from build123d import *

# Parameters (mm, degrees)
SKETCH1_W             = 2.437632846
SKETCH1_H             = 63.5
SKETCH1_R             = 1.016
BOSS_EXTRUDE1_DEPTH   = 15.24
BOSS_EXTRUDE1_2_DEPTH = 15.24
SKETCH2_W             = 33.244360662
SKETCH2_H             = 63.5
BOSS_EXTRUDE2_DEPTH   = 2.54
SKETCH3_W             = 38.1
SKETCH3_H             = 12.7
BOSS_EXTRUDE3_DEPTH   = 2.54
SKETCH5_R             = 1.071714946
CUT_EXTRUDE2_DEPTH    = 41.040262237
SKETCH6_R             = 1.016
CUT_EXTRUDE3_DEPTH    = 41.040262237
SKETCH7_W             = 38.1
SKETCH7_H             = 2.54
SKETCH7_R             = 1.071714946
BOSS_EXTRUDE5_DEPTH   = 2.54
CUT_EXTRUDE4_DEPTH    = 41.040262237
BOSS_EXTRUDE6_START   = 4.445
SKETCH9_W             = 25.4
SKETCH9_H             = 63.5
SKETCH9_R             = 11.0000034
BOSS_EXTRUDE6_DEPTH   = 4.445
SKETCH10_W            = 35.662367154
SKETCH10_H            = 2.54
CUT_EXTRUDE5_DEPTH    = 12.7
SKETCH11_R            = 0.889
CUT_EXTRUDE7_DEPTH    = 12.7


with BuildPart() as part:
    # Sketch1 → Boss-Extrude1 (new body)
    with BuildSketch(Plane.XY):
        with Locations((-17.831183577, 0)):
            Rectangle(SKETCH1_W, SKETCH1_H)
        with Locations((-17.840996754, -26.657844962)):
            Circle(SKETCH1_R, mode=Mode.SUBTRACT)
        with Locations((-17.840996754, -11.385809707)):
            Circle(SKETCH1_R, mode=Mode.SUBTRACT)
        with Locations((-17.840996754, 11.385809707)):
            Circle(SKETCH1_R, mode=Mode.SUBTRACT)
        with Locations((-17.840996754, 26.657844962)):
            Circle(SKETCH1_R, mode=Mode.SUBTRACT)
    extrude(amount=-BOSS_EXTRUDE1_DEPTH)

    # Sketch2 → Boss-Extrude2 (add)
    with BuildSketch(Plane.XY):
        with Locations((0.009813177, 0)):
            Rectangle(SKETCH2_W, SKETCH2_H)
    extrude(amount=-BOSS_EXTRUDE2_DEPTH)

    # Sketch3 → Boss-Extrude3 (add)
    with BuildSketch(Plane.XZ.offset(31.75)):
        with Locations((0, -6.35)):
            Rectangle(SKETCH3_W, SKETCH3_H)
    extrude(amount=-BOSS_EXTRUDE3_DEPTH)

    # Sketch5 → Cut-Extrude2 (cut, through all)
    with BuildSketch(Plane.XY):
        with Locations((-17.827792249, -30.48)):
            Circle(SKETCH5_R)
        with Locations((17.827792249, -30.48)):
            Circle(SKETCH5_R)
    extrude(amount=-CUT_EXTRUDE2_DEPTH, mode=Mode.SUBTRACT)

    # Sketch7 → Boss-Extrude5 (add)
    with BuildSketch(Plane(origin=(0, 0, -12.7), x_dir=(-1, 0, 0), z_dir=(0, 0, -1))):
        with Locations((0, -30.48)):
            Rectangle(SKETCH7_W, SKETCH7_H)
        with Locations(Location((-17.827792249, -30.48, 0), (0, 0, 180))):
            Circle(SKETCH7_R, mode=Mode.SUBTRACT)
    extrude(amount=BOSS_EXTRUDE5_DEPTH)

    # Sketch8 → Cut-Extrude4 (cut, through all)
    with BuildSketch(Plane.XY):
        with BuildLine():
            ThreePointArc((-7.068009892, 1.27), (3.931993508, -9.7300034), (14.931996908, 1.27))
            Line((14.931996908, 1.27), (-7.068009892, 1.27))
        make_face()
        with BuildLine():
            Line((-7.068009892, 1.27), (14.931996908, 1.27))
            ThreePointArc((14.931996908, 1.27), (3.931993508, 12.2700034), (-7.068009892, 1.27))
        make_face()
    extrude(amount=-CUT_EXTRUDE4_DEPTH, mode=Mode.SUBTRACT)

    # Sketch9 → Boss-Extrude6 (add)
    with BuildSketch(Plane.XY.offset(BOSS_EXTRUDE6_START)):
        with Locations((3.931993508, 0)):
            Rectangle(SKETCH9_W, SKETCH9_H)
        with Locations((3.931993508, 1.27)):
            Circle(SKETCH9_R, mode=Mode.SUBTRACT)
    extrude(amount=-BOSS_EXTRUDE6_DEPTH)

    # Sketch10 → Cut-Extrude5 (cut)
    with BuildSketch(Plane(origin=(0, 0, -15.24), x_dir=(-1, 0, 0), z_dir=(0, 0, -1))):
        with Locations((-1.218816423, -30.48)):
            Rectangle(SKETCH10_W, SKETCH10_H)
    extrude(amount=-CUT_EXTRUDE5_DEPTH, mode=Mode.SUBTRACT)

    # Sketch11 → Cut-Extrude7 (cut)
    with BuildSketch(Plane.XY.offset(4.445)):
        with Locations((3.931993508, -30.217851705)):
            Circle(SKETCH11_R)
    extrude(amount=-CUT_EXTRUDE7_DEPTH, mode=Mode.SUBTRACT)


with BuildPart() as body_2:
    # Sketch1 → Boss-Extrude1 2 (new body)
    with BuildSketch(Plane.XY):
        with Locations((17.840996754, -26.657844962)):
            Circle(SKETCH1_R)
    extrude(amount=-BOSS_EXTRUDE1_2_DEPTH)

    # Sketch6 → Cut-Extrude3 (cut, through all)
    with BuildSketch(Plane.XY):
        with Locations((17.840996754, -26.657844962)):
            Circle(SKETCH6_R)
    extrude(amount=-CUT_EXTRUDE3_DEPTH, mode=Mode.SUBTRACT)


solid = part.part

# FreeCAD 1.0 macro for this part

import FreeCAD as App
import Part
import Sketcher

V = App.Vector
Q = App.Units.Quantity


def add_polygon(sketch, points):
    """Adds a closed chain of lines whose ends are joined by coincident constraints."""
    first, n = sketch.GeometryCount, len(points)
    for a, b in zip(points, points[1:] + points[:1]):
        sketch.addGeometry(Part.LineSegment(App.Vector(*a, 0), App.Vector(*b, 0)), False)
    for i in range(n):
        sketch.addConstraint(Sketcher.Constraint("Coincident", first + i, 2, first + (i + 1) % n, 1))

doc = App.newDocument("Part")
body = doc.addObject("PartDesign::Body", "Body")

sketch1 = doc.addObject("Sketcher::SketchObject", "Sketch")
body.addObject(sketch1)
sketch1.AttachmentSupport = (doc.XY_Plane, [""])
sketch1.MapMode = "FlatFace"
add_polygon(sketch1, [(-19.1, 31.8), (-19.1, -31.8), (-16.6, -31.8), (-16.6, 31.8)])
sketch1.addGeometry(Part.Circle(V(-17.8, -26.7, 0), V(0, 0, 1), 1), False)
sketch1.addGeometry(Part.Circle(V(-17.8, -11.4, 0), V(0, 0, 1), 1), False)
sketch1.addGeometry(Part.Circle(V(-17.8, 11.4, 0), V(0, 0, 1), 1), False)
sketch1.addGeometry(Part.Circle(V(-17.8, 26.7, 0), V(0, 0, 1), 1), False)
sketch1.addConstraint(Sketcher.Constraint("Vertical", 0))
sketch1.addConstraint(Sketcher.Constraint("Horizontal", 1))
sketch1.addConstraint(Sketcher.Constraint("Vertical", 2))
sketch1.addConstraint(Sketcher.Constraint("Horizontal", 3))
sketch1.addConstraint(Sketcher.Constraint("Equal", 4, 5))
sketch1.addConstraint(Sketcher.Constraint("Equal", 5, 6))
sketch1.addConstraint(Sketcher.Constraint("Equal", 6, 7))
sketch1.addConstraint(Sketcher.Constraint("Symmetric", 5, 3, 6, 3, -1))
sketch1.addConstraint(Sketcher.Constraint("Symmetric", 4, 3, 7, 3, -1))
sketch1.addConstraint(Sketcher.Constraint("Vertical", 4, 3, 5, 3))
sketch1.addConstraint(Sketcher.Constraint("Diameter", 4, Q("0.08 in")))
sketch1.addConstraint(Sketcher.Constraint("DistanceY", 0, 2, 0, 1, Q("2.5 in")))
sketch1.addConstraint(Sketcher.Constraint("DistanceX", 0, 2, -1, 1, Q("0.75 in")))
sketch1.addConstraint(Sketcher.Constraint("DistanceY", 0, 2, -1, 1, Q("1.25 in")))
sketch1.addConstraint(Sketcher.Constraint("DistanceX", 1, 1, 1, 2, 2.437633))
sketch1.addConstraint(Sketcher.Constraint("DistanceY", 5, 3, -1, 1, 11.38581))
sketch1.addConstraint(Sketcher.Constraint("DistanceY", 4, 3, 7, 3, 53.31569))
sketch1.addConstraint(Sketcher.Constraint("DistanceX", 4, 3, 1, 2, 1.22863))
pad1 = doc.addObject("PartDesign::Pad", "Pad")
body.addObject(pad1)
pad1.Profile = sketch1
pad1.Length = Q("0.6 in")
pad1.Reversed = True

sketch2 = doc.addObject("Sketcher::SketchObject", "Sketch001")
body.addObject(sketch2)
sketch2.AttachmentSupport = (doc.XY_Plane, [""])
sketch2.MapMode = "FlatFace"
add_polygon(sketch2, [(-17, 32), (-17, -32), (17, -32), (17, 32)])
sketch2.addConstraint(Sketcher.Constraint("Vertical", 0))
sketch2.addConstraint(Sketcher.Constraint("Horizontal", 1))
sketch2.addConstraint(Sketcher.Constraint("Vertical", 2))
sketch2.addConstraint(Sketcher.Constraint("Horizontal", 3))
sketch2.addConstraint(Sketcher.Constraint("DistanceY", 0, 2, 0, 1, Q("2.5 in")))
sketch2.addConstraint(Sketcher.Constraint("DistanceY", 0, 2, -1, 1, Q("1.25 in")))
sketch2.addConstraint(Sketcher.Constraint("DistanceX", 1, 1, 1, 2, 33.244361))
sketch2.addConstraint(Sketcher.Constraint("DistanceX", 0, 2, -1, 1, 16.612367))
pad2 = doc.addObject("PartDesign::Pad", "Pad001")
body.addObject(pad2)
pad2.Profile = sketch2
pad2.Length = Q("0.1 in")
pad2.Reversed = True

sketch3 = doc.addObject("Sketcher::SketchObject", "Sketch002")
body.addObject(sketch3)
sketch3.AttachmentSupport = (doc.XZ_Plane, [""])
sketch3.MapMode = "FlatFace"
sketch3.AttachmentOffset = App.Placement(V(0, 0, 1.25 * 25.4), App.Rotation())
add_polygon(sketch3, [(-19, 0), (-19, -13), (19, -13), (19, 0)])
sketch3.addConstraint(Sketcher.Constraint("Vertical", 0))
sketch3.addConstraint(Sketcher.Constraint("Horizontal", 1))
sketch3.addConstraint(Sketcher.Constraint("Vertical", 2))
sketch3.addConstraint(Sketcher.Constraint("Horizontal", 3))
sketch3.addConstraint(Sketcher.Constraint("Symmetric", 2, 2, 3, 2, -1, 1))
sketch3.addConstraint(Sketcher.Constraint("DistanceX", 1, 1, 1, 2, Q("1.5 in")))
sketch3.addConstraint(Sketcher.Constraint("DistanceY", 0, 2, 0, 1, Q("0.5 in")))
pad3 = doc.addObject("PartDesign::Pad", "Pad002")
body.addObject(pad3)
pad3.Profile = sketch3
pad3.Length = Q("0.1 in")
pad3.Reversed = True

sketch4 = doc.addObject("Sketcher::SketchObject", "Sketch003")
body.addObject(sketch4)
sketch4.AttachmentSupport = (doc.XY_Plane, [""])
sketch4.MapMode = "FlatFace"
sketch4.addGeometry(Part.Circle(V(-17.8, -30.5, 0), V(0, 0, 1), 1.1), False)
sketch4.addGeometry(Part.Circle(V(17.8, -30.5, 0), V(0, 0, 1), 1.1), False)
sketch4.addConstraint(Sketcher.Constraint("Equal", 0, 1))
sketch4.addConstraint(Sketcher.Constraint("Symmetric", 0, 3, 1, 3, -2))
sketch4.addConstraint(Sketcher.Constraint("DistanceY", 0, 3, -1, 1, Q("1.2 in")))
sketch4.addConstraint(Sketcher.Constraint("Diameter", 0, 2.14343))
sketch4.addConstraint(Sketcher.Constraint("DistanceX", 0, 3, -1, 1, 17.827792))
pocket1 = doc.addObject("PartDesign::Pocket", "Pocket")
body.addObject(pocket1)
pocket1.Profile = sketch4
pocket1.Type = "ThroughAll"

sketch5 = doc.addObject("Sketcher::SketchObject", "Sketch004")
body.addObject(sketch5)
sketch5.AttachmentSupport = (doc.XY_Plane, [""])
sketch5.MapMode = "FlatFace"
sketch5.AttachmentOffset = App.Placement(V(0, 0, -0.5 * 25.4), App.Rotation())
add_polygon(sketch5, [(19.1, -29.2), (19.1, -31.8), (-19.1, -31.8), (-19.1, -29.2)])
sketch5.addGeometry(Part.Circle(V(17.8, -30.5, 0), V(0, 0, 1), 1.1), False)
sketch5.addConstraint(Sketcher.Constraint("Vertical", 0))
sketch5.addConstraint(Sketcher.Constraint("Horizontal", 1))
sketch5.addConstraint(Sketcher.Constraint("Vertical", 2))
sketch5.addConstraint(Sketcher.Constraint("Horizontal", 3))
sketch5.addConstraint(Sketcher.Constraint("DistanceX", 1, 2, 1, 1, Q("1.5 in")))
sketch5.addConstraint(Sketcher.Constraint("DistanceY", 0, 2, 0, 1, Q("0.1 in")))
sketch5.addConstraint(Sketcher.Constraint("DistanceY", 4, 3, -1, 1, Q("1.2 in")))
sketch5.addConstraint(Sketcher.Constraint("DistanceX", -1, 1, 0, 2, Q("0.75 in")))
sketch5.addConstraint(Sketcher.Constraint("DistanceY", 0, 2, -1, 1, Q("1.25 in")))
sketch5.addConstraint(Sketcher.Constraint("Diameter", 4, 2.14343))
sketch5.addConstraint(Sketcher.Constraint("DistanceX", -1, 1, 4, 3, 17.827792))
pad4 = doc.addObject("PartDesign::Pad", "Pad003")
body.addObject(pad4)
pad4.Profile = sketch5
pad4.Length = Q("0.1 in")
pad4.Reversed = True

sketch6 = doc.addObject("Sketcher::SketchObject", "Sketch005")
body.addObject(sketch6)
sketch6.AttachmentSupport = (doc.XY_Plane, [""])
sketch6.MapMode = "FlatFace"
sketch6.addGeometry(Part.Circle(V(4, 1, 0), V(0, 0, 1), 11), False)
sketch6.addConstraint(Sketcher.Constraint("DistanceY", -1, 1, 0, 3, Q("0.05 in")))
sketch6.addConstraint(Sketcher.Constraint("Diameter", 0, 22.000007))
sketch6.addConstraint(Sketcher.Constraint("DistanceX", -1, 1, 0, 3, 3.931994))
pocket2 = doc.addObject("PartDesign::Pocket", "Pocket001")
body.addObject(pocket2)
pocket2.Profile = sketch6
pocket2.Type = "ThroughAll"

sketch7 = doc.addObject("Sketcher::SketchObject", "Sketch006")
body.addObject(sketch7)
sketch7.AttachmentSupport = (doc.XY_Plane, [""])
sketch7.MapMode = "FlatFace"
sketch7.AttachmentOffset = App.Placement(V(0, 0, 0.175 * 25.4), App.Rotation())
add_polygon(sketch7, [(-9, 32), (-9, -32), (17, -32), (17, 32)])
sketch7.addGeometry(Part.Circle(V(4, 1, 0), V(0, 0, 1), 11), False)
sketch7.addConstraint(Sketcher.Constraint("Vertical", 0))
sketch7.addConstraint(Sketcher.Constraint("Horizontal", 1))
sketch7.addConstraint(Sketcher.Constraint("Vertical", 2))
sketch7.addConstraint(Sketcher.Constraint("Horizontal", 3))
sketch7.addConstraint(Sketcher.Constraint("DistanceX", 1, 1, 1, 2, Q("1 in")))
sketch7.addConstraint(Sketcher.Constraint("DistanceY", 0, 2, 0, 1, Q("2.5 in")))
sketch7.addConstraint(Sketcher.Constraint("DistanceX", 0, 2, 4, 3, Q("0.5 in")))
sketch7.addConstraint(Sketcher.Constraint("DistanceY", 0, 2, 4, 3, Q("1.3 in")))
sketch7.addConstraint(Sketcher.Constraint("DistanceY", -1, 1, 4, 3, Q("0.05 in")))
sketch7.addConstraint(Sketcher.Constraint("Diameter", 4, 22.000007))
sketch7.addConstraint(Sketcher.Constraint("DistanceX", -1, 1, 4, 3, 3.931994))
pad5 = doc.addObject("PartDesign::Pad", "Pad004")
body.addObject(pad5)
pad5.Profile = sketch7
pad5.Length = Q("0.175 in")
pad5.Reversed = True

sketch8 = doc.addObject("Sketcher::SketchObject", "Sketch007")
body.addObject(sketch8)
sketch8.AttachmentSupport = (doc.XY_Plane, [""])
sketch8.MapMode = "FlatFace"
sketch8.AttachmentOffset = App.Placement(V(0, 0, -0.6 * 25.4), App.Rotation())
add_polygon(sketch8, [(19.1, -29.2), (19.1, -31.8), (-16.6, -31.8), (-16.6, -29.2)])
sketch8.addConstraint(Sketcher.Constraint("Vertical", 0))
sketch8.addConstraint(Sketcher.Constraint("Horizontal", 1))
sketch8.addConstraint(Sketcher.Constraint("Vertical", 2))
sketch8.addConstraint(Sketcher.Constraint("Horizontal", 3))
sketch8.addConstraint(Sketcher.Constraint("DistanceY", 0, 2, 0, 1, Q("0.1 in")))
sketch8.addConstraint(Sketcher.Constraint("DistanceX", -1, 1, 0, 2, Q("0.75 in")))
sketch8.addConstraint(Sketcher.Constraint("DistanceY", 0, 2, -1, 1, Q("1.25 in")))
sketch8.addConstraint(Sketcher.Constraint("DistanceX", 1, 2, 1, 1, 35.662367))
pocket3 = doc.addObject("PartDesign::Pocket", "Pocket002")
body.addObject(pocket3)
pocket3.Profile = sketch8
pocket3.Length = Q("0.5 in")
pocket3.Reversed = True

sketch9 = doc.addObject("Sketcher::SketchObject", "Sketch008")
body.addObject(sketch9)
sketch9.AttachmentSupport = (doc.XY_Plane, [""])
sketch9.MapMode = "FlatFace"
sketch9.AttachmentOffset = App.Placement(V(0, 0, 0.175 * 25.4), App.Rotation())
sketch9.addGeometry(Part.Circle(V(3.9, -30.2, 0), V(0, 0, 1), 0.9), False)
sketch9.addConstraint(Sketcher.Constraint("Diameter", 0, Q("0.07 in")))
sketch9.addConstraint(Sketcher.Constraint("DistanceY", 0, 3, -1, 1, 30.217852))
sketch9.addConstraint(Sketcher.Constraint("DistanceX", -1, 1, 0, 3, 3.931994))
pocket4 = doc.addObject("PartDesign::Pocket", "Pocket003")
body.addObject(pocket4)
pocket4.Profile = sketch9
pocket4.Length = Q("0.5 in")
body2 = doc.addObject("PartDesign::Body", "Body001")

sketch10 = doc.addObject("Sketcher::SketchObject", "Sketch009")
body2.addObject(sketch10)
sketch10.AttachmentSupport = (doc.getObject("XY_Plane001"), [""])
sketch10.MapMode = "FlatFace"
sketch10.addGeometry(Part.Circle(V(17.8, -26.7, 0), V(0, 0, 1), 1), False)
sketch10.addConstraint(Sketcher.Constraint("Diameter", 0, Q("0.08 in")))
sketch10.addConstraint(Sketcher.Constraint("DistanceX", -1, 1, 0, 3, 17.840997))
sketch10.addConstraint(Sketcher.Constraint("DistanceY", 0, 3, -1, 1, 26.657845))
pad6 = doc.addObject("PartDesign::Pad", "Pad005")
body2.addObject(pad6)
pad6.Profile = sketch10
pad6.Length = Q("0.6 in")
pad6.Reversed = True

sketch11 = doc.addObject("Sketcher::SketchObject", "Sketch010")
body2.addObject(sketch11)
sketch11.AttachmentSupport = (doc.getObject("XY_Plane001"), [""])
sketch11.MapMode = "FlatFace"
sketch11.addGeometry(Part.Circle(V(17.8, -26.7, 0), V(0, 0, 1), 1), False)
sketch11.addConstraint(Sketcher.Constraint("Diameter", 0, Q("0.08 in")))
sketch11.addConstraint(Sketcher.Constraint("DistanceX", -1, 1, 0, 3, 17.840997))
sketch11.addConstraint(Sketcher.Constraint("DistanceY", 0, 3, -1, 1, 26.657845))
pocket5 = doc.addObject("PartDesign::Pocket", "Pocket004")
body2.addObject(pocket5)
pocket5.Profile = sketch11
pocket5.Type = "ThroughAll"

doc.recompute()
